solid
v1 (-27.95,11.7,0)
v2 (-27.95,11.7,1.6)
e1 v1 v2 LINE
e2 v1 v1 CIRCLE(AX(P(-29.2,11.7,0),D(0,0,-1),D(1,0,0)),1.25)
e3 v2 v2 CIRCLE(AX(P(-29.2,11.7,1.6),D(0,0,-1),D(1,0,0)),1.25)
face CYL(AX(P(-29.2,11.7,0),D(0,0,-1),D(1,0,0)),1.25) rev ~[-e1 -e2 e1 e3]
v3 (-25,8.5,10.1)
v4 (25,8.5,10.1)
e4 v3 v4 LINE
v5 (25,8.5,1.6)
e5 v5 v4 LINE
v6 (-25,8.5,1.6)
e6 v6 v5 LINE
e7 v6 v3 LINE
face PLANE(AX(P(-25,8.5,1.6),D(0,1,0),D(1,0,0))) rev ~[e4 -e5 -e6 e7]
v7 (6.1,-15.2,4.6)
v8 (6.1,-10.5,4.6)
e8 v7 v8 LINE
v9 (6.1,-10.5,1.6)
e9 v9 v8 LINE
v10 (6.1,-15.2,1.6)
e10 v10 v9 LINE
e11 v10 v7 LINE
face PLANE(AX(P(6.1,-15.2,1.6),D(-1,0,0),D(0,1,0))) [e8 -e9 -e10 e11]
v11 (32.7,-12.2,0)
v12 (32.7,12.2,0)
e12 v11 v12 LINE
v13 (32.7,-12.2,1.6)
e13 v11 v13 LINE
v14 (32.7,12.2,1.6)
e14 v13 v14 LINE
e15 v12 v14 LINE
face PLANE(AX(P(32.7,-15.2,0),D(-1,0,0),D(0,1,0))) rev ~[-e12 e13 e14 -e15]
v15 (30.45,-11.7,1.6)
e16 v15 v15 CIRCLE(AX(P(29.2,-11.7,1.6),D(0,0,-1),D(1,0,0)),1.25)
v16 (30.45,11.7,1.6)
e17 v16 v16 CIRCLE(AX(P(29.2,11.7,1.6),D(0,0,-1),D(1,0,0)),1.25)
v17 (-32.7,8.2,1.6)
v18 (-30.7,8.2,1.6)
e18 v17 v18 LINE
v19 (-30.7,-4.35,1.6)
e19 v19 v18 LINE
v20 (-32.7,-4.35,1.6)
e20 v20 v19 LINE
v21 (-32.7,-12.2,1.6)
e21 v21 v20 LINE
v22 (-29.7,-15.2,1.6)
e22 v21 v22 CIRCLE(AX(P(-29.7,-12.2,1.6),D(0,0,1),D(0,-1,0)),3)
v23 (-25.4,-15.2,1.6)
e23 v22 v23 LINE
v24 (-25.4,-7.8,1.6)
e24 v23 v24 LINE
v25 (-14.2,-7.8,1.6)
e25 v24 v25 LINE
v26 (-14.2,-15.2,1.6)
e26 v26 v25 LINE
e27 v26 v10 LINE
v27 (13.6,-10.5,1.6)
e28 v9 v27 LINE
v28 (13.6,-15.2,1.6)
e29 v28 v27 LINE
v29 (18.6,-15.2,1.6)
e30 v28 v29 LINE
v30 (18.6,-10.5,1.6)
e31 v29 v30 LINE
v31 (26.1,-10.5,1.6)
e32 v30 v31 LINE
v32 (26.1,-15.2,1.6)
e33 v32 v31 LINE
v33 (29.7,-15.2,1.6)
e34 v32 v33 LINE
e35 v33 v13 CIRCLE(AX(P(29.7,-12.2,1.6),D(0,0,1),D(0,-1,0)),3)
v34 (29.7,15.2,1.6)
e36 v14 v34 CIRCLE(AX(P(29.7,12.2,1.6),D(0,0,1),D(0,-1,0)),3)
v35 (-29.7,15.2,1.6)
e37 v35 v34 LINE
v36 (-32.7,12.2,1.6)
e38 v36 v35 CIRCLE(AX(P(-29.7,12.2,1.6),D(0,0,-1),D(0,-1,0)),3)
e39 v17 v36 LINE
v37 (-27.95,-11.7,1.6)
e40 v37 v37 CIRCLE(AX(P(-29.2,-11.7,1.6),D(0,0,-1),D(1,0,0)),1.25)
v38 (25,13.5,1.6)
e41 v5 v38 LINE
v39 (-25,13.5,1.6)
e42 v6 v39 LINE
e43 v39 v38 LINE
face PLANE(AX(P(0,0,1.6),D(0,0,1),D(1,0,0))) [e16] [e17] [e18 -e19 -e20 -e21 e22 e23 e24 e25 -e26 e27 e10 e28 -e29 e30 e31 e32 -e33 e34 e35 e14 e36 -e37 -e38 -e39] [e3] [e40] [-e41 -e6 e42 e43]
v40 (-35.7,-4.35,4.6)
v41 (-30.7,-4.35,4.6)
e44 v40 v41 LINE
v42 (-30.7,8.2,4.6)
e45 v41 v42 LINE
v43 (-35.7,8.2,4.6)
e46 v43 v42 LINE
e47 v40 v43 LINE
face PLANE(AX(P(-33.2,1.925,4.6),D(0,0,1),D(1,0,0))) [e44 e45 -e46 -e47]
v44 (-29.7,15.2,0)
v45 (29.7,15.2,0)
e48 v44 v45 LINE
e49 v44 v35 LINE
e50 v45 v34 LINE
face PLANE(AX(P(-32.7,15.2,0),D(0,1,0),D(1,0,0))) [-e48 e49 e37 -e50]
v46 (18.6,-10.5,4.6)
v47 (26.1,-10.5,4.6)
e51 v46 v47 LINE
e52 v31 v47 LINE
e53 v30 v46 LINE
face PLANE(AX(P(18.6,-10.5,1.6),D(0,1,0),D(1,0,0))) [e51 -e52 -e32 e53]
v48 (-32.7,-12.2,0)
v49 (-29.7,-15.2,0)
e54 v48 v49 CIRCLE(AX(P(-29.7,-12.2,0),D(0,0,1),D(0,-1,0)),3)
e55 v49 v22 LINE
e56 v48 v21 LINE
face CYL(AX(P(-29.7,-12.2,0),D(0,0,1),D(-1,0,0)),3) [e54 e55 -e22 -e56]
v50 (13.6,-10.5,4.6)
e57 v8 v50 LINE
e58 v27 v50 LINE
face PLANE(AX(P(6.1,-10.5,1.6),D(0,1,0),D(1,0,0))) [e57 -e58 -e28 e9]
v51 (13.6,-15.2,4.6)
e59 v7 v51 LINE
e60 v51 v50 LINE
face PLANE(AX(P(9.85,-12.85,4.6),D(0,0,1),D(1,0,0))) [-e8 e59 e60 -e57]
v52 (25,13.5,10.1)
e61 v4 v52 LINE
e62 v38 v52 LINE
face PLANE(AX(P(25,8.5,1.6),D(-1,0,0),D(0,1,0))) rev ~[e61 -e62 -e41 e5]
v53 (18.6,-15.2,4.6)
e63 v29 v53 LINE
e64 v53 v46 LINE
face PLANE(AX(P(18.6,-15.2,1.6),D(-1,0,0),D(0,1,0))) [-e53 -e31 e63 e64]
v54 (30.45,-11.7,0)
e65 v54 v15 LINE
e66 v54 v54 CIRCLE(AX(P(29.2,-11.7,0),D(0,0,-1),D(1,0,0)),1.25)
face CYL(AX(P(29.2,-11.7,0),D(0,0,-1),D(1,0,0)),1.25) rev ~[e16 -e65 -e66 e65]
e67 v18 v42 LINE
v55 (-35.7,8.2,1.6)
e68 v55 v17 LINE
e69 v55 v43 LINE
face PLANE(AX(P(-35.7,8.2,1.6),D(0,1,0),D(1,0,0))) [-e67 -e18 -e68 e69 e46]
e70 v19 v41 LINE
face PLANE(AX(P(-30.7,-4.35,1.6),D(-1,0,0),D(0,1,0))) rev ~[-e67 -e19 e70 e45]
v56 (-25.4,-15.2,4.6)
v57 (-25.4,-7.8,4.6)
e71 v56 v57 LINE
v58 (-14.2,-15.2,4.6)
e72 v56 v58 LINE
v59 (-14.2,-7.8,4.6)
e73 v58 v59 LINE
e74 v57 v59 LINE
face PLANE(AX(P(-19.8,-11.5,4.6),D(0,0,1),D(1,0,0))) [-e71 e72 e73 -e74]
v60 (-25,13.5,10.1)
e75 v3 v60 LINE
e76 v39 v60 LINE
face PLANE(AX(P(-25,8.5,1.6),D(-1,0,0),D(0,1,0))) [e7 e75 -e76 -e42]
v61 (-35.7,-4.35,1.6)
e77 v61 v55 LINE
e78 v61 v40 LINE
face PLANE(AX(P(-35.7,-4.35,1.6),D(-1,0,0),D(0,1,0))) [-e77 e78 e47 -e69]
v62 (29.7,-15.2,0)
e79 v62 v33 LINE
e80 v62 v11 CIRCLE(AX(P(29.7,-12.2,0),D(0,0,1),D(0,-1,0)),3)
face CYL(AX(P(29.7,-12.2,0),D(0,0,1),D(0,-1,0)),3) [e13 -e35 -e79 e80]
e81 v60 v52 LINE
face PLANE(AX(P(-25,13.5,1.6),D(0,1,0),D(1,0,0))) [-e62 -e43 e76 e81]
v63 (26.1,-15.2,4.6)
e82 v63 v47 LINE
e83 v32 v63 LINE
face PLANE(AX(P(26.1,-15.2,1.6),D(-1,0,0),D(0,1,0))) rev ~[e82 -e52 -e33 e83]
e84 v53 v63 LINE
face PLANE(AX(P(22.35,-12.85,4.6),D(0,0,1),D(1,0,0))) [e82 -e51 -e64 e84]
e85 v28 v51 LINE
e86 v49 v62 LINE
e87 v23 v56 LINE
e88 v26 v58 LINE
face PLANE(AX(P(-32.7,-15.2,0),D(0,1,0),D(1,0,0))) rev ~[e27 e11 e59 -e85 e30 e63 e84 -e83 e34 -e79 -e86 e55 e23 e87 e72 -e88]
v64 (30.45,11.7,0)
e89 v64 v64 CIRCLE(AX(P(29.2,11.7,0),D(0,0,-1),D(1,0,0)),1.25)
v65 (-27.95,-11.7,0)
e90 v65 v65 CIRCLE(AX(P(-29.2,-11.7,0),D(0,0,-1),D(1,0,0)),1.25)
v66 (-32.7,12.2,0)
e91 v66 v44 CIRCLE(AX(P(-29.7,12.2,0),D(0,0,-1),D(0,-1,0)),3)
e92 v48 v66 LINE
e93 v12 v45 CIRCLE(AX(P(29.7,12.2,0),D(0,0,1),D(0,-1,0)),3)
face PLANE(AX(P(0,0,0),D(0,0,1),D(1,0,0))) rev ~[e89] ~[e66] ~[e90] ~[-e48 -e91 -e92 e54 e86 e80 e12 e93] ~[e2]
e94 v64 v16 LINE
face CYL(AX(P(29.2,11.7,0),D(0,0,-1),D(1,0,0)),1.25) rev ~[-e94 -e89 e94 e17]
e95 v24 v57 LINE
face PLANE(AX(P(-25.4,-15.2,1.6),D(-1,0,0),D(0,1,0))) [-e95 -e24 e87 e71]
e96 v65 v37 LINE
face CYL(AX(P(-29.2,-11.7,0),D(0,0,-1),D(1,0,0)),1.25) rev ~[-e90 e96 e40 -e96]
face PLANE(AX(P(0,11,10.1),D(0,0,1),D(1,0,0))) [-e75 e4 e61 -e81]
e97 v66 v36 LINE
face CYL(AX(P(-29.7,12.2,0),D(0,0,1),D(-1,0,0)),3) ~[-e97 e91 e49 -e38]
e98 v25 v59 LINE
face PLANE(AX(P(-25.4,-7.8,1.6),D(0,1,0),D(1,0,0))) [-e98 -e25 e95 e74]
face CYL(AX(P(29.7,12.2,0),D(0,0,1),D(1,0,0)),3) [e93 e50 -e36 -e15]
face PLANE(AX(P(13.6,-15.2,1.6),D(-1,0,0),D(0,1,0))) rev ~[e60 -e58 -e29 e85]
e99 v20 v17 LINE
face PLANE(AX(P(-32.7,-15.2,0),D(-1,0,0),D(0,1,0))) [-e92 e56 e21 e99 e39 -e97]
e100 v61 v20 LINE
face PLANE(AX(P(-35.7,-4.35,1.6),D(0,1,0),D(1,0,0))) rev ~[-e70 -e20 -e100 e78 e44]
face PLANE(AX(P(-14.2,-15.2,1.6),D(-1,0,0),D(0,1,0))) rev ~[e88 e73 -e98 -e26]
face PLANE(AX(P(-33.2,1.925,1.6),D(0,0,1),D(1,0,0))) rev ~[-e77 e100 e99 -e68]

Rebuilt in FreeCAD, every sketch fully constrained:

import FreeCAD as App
import Part
import Sketcher
from FreeCAD import Vector
Q = App.Units.Quantity


def edges_at(feature, points):
    """Names of the edges that pass closest to the given points."""
    edges = feature.Shape.Edges
    near = lambda p: min(range(len(edges)), key=lambda i: edges[i].distToShape(Part.Vertex(*p))[0])
    return sorted({f"Edge{near(p) + 1}" for p in points})


def add_polygon(sketch, points):
    """Adds a closed chain of lines whose ends are joined by coincident constraints."""
    first, n = sketch.GeometryCount, len(points)
    for a, b in zip(points, points[1:] + points[:1]):
        sketch.addGeometry(Part.LineSegment(App.Vector(*a, 0), App.Vector(*b, 0)), False)
    for i in range(n):
        sketch.addConstraint(Sketcher.Constraint("Coincident", first + i, 2, first + (i + 1) % n, 1))

doc = App.newDocument("Part")
body = doc.addObject("PartDesign::Body", "Body")

sketch1 = body.newObject("Sketcher::SketchObject", "Sketch")
sketch1.AttachmentSupport = (doc.getObject("XY_Plane"), [""])
sketch1.MapMode = "FlatFace"
add_polygon(sketch1, [(-33, 15), (-33, -15), (33, -15), (33, 15)])
sketch1.addConstraint([
    Sketcher.Constraint("Vertical", 0),
    Sketcher.Constraint("Horizontal", 1),
    Sketcher.Constraint("Vertical", 2),
    Sketcher.Constraint("Horizontal", 3),
    Sketcher.Constraint("Symmetric", 0, 2, 2, 2, -1, 1),
    Sketcher.Constraint("DistanceX", 1, 1, 1, 2, Q("65.4 mm")),
    Sketcher.Constraint("DistanceY", 0, 2, 0, 1, Q("30.4 mm")),
])
pad1 = body.newObject("PartDesign::Pad", "Pad")
pad1.Profile = sketch1
pad1.Length = 1.6
doc.recompute()

fillet = body.newObject("PartDesign::Fillet", "Fillet")
fillet.Base = (pad1, edges_at(pad1, [
    (32.7, -15.2, 0.8),
    (-32.7, -15.2, 0.8),
    (-32.7, 15.2, 0.8),
    (32.7, 15.2, 0.8),
]))
fillet.Radius = 3

sketch2 = body.newObject("Sketcher::SketchObject", "Sketch001")
sketch2.AttachmentSupport = (doc.getObject("XY_Plane"), [""])
sketch2.MapMode = "FlatFace"
sketch2.AttachmentOffset = App.Placement(Vector(0, 0, 1.6), App.Rotation())
add_polygon(sketch2, [(6.1, -10.5), (6.1, -15.2), (13.6, -15.2), (13.6, -10.5)])
add_polygon(sketch2, [(18.6, -10.5), (18.6, -15.2), (26.1, -15.2), (26.1, -10.5)])
add_polygon(sketch2, [(-35.7, 8.2), (-35.7, -4.3), (-30.7, -4.3), (-30.7, 8.2)])
add_polygon(sketch2, [(-25.4, -7.8), (-25.4, -15.2), (-14.2, -15.2), (-14.2, -7.8)])
sketch2.addConstraint([
    Sketcher.Constraint("Vertical", 0),
    Sketcher.Constraint("Horizontal", 1),
    Sketcher.Constraint("Vertical", 2),
    Sketcher.Constraint("Horizontal", 3),
    Sketcher.Constraint("Vertical", 4),
    Sketcher.Constraint("Horizontal", 5),
    Sketcher.Constraint("Vertical", 6),
    Sketcher.Constraint("Horizontal", 7),
    Sketcher.Constraint("Vertical", 8),
    Sketcher.Constraint("Horizontal", 9),
    Sketcher.Constraint("Vertical", 10),
    Sketcher.Constraint("Horizontal", 11),
    Sketcher.Constraint("Vertical", 12),
    Sketcher.Constraint("Horizontal", 13),
    Sketcher.Constraint("Vertical", 14),
    Sketcher.Constraint("Horizontal", 15),
    Sketcher.Constraint("Horizontal", 1, 2, 4, 2),
    Sketcher.Constraint("Horizontal", 3, 2, 6, 2),
    Sketcher.Constraint("Horizontal", 5, 2, 12, 2),
    Sketcher.Constraint("Equal", 3, 5),
    Sketcher.Constraint("DistanceX", 9, 1, 9, 2, Q("5 mm")),
    Sketcher.Constraint("DistanceX", 1, 1, 1, 2, Q("7.5 mm")),
    Sketcher.Constraint("DistanceX", 13, 1, 13, 2, Q("11.2 mm")),
    Sketcher.Constraint("DistanceY", 0, 2, 0, 1, Q("4.7 mm")),
    Sketcher.Constraint("DistanceY", 12, 2, 12, 1, Q("7.4 mm")),
    Sketcher.Constraint("DistanceX", 1, 2, 4, 2, Q("5 mm")),
    Sketcher.Constraint("DistanceY", 8, 2, 8, 1, Q("12.55 mm")),
    Sketcher.Constraint("DistanceX", -1, 1, 0, 2, Q("6.1 mm")),
    Sketcher.Constraint("DistanceY", 0, 2, -1, 1, Q("15.2 mm")),
    Sketcher.Constraint("DistanceX", 8, 2, -1, 1, Q("35.7 mm")),
    Sketcher.Constraint("DistanceY", -1, 1, 10, 2, Q("8.2 mm")),
    Sketcher.Constraint("DistanceX", 12, 2, -1, 1, Q("25.4 mm")),
])
pad2 = body.newObject("PartDesign::Pad", "Pad001")
pad2.Profile = sketch2
pad2.Length = 3

sketch3 = body.newObject("Sketcher::SketchObject", "Sketch002")
sketch3.AttachmentSupport = (doc.getObject("XY_Plane"), [""])
sketch3.MapMode = "FlatFace"
sketch3.addGeometry([
    Part.Circle(Vector(-29.2, -11.7, 0), Vector(0, 0, 1), 1.2),
    Part.Circle(Vector(29.2, 11.7, 0), Vector(0, 0, 1), 1.2),
    Part.Circle(Vector(29.2, -11.7, 0), Vector(0, 0, 1), 1.2),
    Part.Circle(Vector(-29.2, 11.7, 0), Vector(0, 0, 1), 1.2),
], False)
sketch3.addConstraint([
    Sketcher.Constraint("Equal", 0, 1),
    Sketcher.Constraint("Equal", 1, 2),
    Sketcher.Constraint("Equal", 2, 3),
    Sketcher.Constraint("Symmetric", 0, 3, 1, 3, -1, 1),
    Sketcher.Constraint("Symmetric", 2, 3, 3, 3, -1, 1),
    Sketcher.Constraint("Symmetric", 0, 3, 2, 3, -2),
    Sketcher.Constraint("Diameter", 0, Q("2.5 mm")),
    Sketcher.Constraint("DistanceX", 0, 3, -1, 1, Q("29.2 mm")),
    Sketcher.Constraint("DistanceY", 0, 3, -1, 1, Q("11.7 mm")),
])
pocket1 = body.newObject("PartDesign::Pocket", "Pocket")
pocket1.Profile = sketch3
pocket1.Length = 5
pocket1.Reversed = True

sketch4 = body.newObject("Sketcher::SketchObject", "Sketch003")
sketch4.AttachmentSupport = (doc.getObject("XY_Plane"), [""])
sketch4.MapMode = "FlatFace"
sketch4.AttachmentOffset = App.Placement(Vector(0, 0, 1.6), App.Rotation())
add_polygon(sketch4, [(-25, 14), (-25, 8), (25, 8), (25, 14)])
sketch4.addConstraint([
    Sketcher.Constraint("Vertical", 0),
    Sketcher.Constraint("Horizontal", 1),
    Sketcher.Constraint("Vertical", 2),
    Sketcher.Constraint("Horizontal", 3),
    Sketcher.Constraint("DistanceX", 1, 1, 1, 2, Q("50 mm")),
    Sketcher.Constraint("DistanceY", 0, 2, 0, 1, Q("5 mm")),
    Sketcher.Constraint("DistanceX", 0, 2, -1, 1, Q("25 mm")),
    Sketcher.Constraint("DistanceY", -1, 1, 0, 2, Q("8.5 mm")),
])
pad3 = body.newObject("PartDesign::Pad", "Pad002")
pad3.Profile = sketch4
pad3.Length = 8.5

doc.recompute()
